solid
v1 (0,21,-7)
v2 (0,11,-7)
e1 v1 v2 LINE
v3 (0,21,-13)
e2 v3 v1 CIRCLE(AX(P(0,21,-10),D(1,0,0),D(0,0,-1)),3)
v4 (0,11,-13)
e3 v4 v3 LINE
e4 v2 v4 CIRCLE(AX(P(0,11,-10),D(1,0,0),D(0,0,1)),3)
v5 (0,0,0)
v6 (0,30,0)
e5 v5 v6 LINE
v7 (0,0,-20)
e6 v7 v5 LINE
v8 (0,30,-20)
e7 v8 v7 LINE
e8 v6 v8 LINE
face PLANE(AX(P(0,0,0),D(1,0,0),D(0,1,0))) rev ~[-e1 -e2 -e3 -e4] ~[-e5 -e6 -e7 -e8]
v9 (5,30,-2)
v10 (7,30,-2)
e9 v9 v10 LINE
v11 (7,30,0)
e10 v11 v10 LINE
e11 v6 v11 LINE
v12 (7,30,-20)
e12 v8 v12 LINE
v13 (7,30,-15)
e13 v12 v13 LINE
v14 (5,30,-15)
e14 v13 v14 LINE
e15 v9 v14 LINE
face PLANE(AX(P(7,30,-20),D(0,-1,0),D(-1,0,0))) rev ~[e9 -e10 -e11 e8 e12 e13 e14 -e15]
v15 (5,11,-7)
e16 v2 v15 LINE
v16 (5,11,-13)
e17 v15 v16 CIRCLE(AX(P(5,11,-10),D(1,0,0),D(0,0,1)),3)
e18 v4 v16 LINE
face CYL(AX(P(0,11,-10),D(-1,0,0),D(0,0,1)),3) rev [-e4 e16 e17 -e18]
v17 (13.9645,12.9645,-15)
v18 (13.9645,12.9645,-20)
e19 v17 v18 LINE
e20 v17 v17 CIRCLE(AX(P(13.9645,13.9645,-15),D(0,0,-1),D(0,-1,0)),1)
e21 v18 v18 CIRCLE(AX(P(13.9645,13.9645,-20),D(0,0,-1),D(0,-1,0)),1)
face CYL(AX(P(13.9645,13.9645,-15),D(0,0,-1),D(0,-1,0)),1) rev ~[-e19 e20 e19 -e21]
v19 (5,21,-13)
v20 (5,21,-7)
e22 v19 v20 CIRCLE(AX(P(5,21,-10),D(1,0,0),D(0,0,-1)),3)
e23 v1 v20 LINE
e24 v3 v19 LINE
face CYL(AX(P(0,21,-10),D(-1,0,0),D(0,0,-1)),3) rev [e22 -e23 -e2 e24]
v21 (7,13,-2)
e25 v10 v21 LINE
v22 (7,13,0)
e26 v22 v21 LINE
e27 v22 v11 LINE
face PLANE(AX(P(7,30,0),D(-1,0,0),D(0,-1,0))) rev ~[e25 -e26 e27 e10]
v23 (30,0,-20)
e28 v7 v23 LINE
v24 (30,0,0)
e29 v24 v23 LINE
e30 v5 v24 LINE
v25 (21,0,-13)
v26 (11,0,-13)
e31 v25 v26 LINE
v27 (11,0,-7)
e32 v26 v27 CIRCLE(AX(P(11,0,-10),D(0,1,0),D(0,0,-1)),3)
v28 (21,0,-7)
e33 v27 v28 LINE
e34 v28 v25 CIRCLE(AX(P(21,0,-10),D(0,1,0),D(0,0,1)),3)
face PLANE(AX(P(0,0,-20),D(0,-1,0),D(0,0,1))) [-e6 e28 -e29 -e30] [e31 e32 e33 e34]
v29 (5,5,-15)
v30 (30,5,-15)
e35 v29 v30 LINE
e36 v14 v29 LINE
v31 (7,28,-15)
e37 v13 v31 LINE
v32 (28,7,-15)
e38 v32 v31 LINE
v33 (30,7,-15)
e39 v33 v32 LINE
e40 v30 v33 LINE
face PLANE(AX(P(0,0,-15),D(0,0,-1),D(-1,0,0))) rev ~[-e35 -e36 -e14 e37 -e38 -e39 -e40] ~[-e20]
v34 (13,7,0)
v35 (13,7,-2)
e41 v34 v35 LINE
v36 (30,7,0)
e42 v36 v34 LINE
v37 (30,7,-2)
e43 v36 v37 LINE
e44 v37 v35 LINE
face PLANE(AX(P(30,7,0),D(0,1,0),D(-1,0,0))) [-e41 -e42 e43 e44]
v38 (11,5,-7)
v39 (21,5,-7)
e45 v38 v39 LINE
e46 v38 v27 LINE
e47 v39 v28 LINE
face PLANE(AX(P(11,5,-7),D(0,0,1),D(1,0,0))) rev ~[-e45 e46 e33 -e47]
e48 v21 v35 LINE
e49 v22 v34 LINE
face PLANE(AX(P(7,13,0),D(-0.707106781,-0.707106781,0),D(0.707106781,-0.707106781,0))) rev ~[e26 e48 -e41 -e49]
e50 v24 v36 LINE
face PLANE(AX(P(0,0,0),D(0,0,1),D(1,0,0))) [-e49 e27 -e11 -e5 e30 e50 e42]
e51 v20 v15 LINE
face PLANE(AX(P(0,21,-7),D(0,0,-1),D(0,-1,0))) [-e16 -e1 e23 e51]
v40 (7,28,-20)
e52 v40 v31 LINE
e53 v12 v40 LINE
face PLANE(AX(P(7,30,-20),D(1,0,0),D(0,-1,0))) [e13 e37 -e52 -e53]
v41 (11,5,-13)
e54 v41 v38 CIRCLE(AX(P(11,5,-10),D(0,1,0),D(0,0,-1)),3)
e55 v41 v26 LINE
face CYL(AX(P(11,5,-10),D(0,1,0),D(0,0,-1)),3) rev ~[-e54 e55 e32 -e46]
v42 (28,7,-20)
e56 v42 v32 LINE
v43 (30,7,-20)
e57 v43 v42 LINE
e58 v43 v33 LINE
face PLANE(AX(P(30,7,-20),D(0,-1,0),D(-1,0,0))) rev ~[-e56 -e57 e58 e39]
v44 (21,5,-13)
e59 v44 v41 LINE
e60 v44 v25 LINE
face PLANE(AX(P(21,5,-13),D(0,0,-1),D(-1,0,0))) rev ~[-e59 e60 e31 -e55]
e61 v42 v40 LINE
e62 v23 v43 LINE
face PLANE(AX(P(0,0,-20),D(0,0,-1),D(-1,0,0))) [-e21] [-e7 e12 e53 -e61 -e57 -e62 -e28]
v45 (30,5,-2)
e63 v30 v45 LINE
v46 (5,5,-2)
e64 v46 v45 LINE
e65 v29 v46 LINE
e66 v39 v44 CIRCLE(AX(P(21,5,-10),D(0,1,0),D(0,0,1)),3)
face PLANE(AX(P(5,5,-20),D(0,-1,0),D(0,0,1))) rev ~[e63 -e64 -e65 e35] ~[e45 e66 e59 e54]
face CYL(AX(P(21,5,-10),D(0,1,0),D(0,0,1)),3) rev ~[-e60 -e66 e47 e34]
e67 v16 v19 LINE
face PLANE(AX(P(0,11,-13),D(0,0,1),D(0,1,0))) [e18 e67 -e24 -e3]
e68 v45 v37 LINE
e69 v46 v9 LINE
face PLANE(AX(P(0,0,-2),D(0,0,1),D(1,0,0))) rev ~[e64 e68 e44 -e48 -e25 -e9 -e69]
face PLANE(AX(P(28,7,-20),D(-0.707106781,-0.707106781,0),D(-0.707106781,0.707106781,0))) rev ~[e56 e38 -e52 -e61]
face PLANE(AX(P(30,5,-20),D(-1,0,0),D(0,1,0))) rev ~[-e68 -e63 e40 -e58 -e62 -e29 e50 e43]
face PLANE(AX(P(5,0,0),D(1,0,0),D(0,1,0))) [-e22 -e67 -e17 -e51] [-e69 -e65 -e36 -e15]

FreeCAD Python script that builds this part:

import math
import FreeCAD as App
import Part
import Sketcher

V = App.Vector


def add_polygon(sketch, points):
    """Adds a closed chain of lines whose ends are joined by coincident constraints."""
    first, n = sketch.GeometryCount, len(points)
    for a, b in zip(points, points[1:] + points[:1]):
        sketch.addGeometry(Part.LineSegment(App.Vector(*a, 0), App.Vector(*b, 0)), False)
    for i in range(n):
        sketch.addConstraint(Sketcher.Constraint("Coincident", first + i, 2, first + (i + 1) % n, 1))

doc = App.newDocument("Part")
params = doc.addObject("Spreadsheet::Sheet", "Params")
for row, (alias, value) in enumerate([
    ("sketch1_radius", "3 mm"),
    ("sketch1_width", "30 mm"),
    ("sketch1_width2", "10 mm"),
    ("sketch1_height", "20 mm"),
    ("pad1_length", "5 mm"),
    ("sketch2_width", "5 mm"),
    ("sketch2_height", "20 mm"),
    ("pad2_length", "25 mm"),
    ("sketch3_radius", "3 mm"),
    ("sketch3_width", "10 mm"),
    ("pocket1_length", "5 mm"),
    ("sketch4_width", "2 mm"),
    ("sketch4_width2", "25 mm"),
    ("pad3_length", "2 mm"),
    ("sketch5_width", "2 mm"),
    ("sketch5_width2", "25 mm"),
    ("pad4_length", "5 mm"),
    ("sketch6_width", "15 mm"),
    ("pocket2_length", "2 mm"),
    ("sketch7_diameter", "2 mm"),
    ("hole_diameter", "2 mm"),
], start=1):
    params.set(f"A{row}", alias)
    params.set(f"B{row}", "=" + value)
    params.setAlias(f"B{row}", alias)

body = doc.addObject("PartDesign::Body", "Body")

# Sketch on YZ plane
sketch1 = body.newObject("Sketcher::SketchObject", "Sketch")
sketch1.AttachmentSupport = (doc.getObject("YZ_Plane"), [""])
sketch1.MapMode = "FlatFace"
add_polygon(sketch1, [(30, 0), (0, 0), (0, -20), (30, -20)])  # lines 0-3
sketch1.addGeometry(Part.LineSegment(V(11, -7, 0), V(21, -7, 0)), False)  # 4
sketch1.addGeometry(Part.ArcOfCircle(Part.Circle(V(21, -10, 0), V(0, 0, 1), 3), math.radians(-90), math.radians(90)), False)  # 5
sketch1.addGeometry(Part.LineSegment(V(21, -13, 0), V(11, -13, 0)), False)  # 6
sketch1.addGeometry(Part.ArcOfCircle(Part.Circle(V(11, -10, 0), V(0, 0, 1), 3), math.radians(90), math.radians(270)), False)  # 7
sketch1.addConstraint(Sketcher.Constraint("Tangent", 4, 2, 5, 2))
sketch1.addConstraint(Sketcher.Constraint("Tangent", 5, 1, 6, 1))
sketch1.addConstraint(Sketcher.Constraint("Tangent", 6, 2, 7, 2))
sketch1.addConstraint(Sketcher.Constraint("Tangent", 7, 1, 4, 1))
sketch1.addConstraint(Sketcher.Constraint("Horizontal", 0))
sketch1.addConstraint(Sketcher.Constraint("Vertical", 1))
sketch1.addConstraint(Sketcher.Constraint("Horizontal", 2))
sketch1.addConstraint(Sketcher.Constraint("Vertical", 3))
sketch1.addConstraint(Sketcher.Constraint("Horizontal", 4))
sketch1.addConstraint(Sketcher.Constraint("Horizontal", 6))
sketch1.addConstraint(Sketcher.Constraint("Coincident", 0, 2, -1, 1))
sketch1.addConstraint(Sketcher.Constraint("Radius", 5, 3.0))
sketch1.addConstraint(Sketcher.Constraint("DistanceX", 0, 2, 0, 1, 30.0))
sketch1.addConstraint(Sketcher.Constraint("DistanceX", 4, 1, 4, 2, 10.0))
sketch1.addConstraint(Sketcher.Constraint("DistanceY", 1, 2, 1, 1, 20.0))
sketch1.addConstraint(Sketcher.Constraint("DistanceY", 5, 3, -1, 1, 10.0))
sketch1.addConstraint(Sketcher.Constraint("DistanceX", -1, 1, 5, 3, 21.0))
sketch1.setExpression("Constraints[15]", "Params.sketch1_radius")
sketch1.setExpression("Constraints[16]", "Params.sketch1_width")
sketch1.setExpression("Constraints[17]", "Params.sketch1_width2")
sketch1.setExpression("Constraints[18]", "Params.sketch1_height")
pad1 = body.newObject("PartDesign::Pad", "Pad")
pad1.Profile = sketch1
pad1.setExpression("Length", "Params.pad1_length")

# Sketch on YZ plane
sketch2 = body.newObject("Sketcher::SketchObject", "Sketch001")
sketch2.AttachmentSupport = (doc.getObject("YZ_Plane"), [""])
sketch2.MapMode = "FlatFace"
sketch2.AttachmentOffset = App.Placement(V(0, 0, 5), App.Rotation())
add_polygon(sketch2, [(5, 0), (0, 0), (0, -20), (5, -20)])  # lines 0-3
sketch2.addConstraint(Sketcher.Constraint("Horizontal", 0))
sketch2.addConstraint(Sketcher.Constraint("Vertical", 1))
sketch2.addConstraint(Sketcher.Constraint("Horizontal", 2))
sketch2.addConstraint(Sketcher.Constraint("Vertical", 3))
sketch2.addConstraint(Sketcher.Constraint("Coincident", 0, 2, -1, 1))
sketch2.addConstraint(Sketcher.Constraint("DistanceX", 0, 2, 0, 1, 5.0))
sketch2.addConstraint(Sketcher.Constraint("DistanceY", 1, 2, 1, 1, 20.0))
sketch2.setExpression("Constraints[9]", "Params.sketch2_width")
sketch2.setExpression("Constraints[10]", "Params.sketch2_height")
pad2 = body.newObject("PartDesign::Pad", "Pad001")
pad2.Profile = sketch2
pad2.setExpression("Length", "Params.pad2_length")

# Sketch on XZ plane
sketch3 = body.newObject("Sketcher::SketchObject", "Sketch002")
sketch3.AttachmentSupport = (doc.getObject("XZ_Plane"), [""])
sketch3.MapMode = "FlatFace"
sketch3.AttachmentOffset = App.Placement(V(0, 0, -5), App.Rotation())
sketch3.addGeometry(Part.ArcOfCircle(Part.Circle(V(11, -10, 0), V(0, 0, 1), 3), math.radians(90), math.radians(270)), False)
sketch3.addGeometry(Part.LineSegment(V(11, -7, 0), V(21, -7, 0)), False)
sketch3.addGeometry(Part.ArcOfCircle(Part.Circle(V(21, -10, 0), V(0, 0, 1), 3), math.radians(-90), math.radians(90)), False)
sketch3.addGeometry(Part.LineSegment(V(21, -13, 0), V(11, -13, 0)), False)
sketch3.addConstraint(Sketcher.Constraint("Tangent", 0, 1, 1, 1))
sketch3.addConstraint(Sketcher.Constraint("Tangent", 1, 2, 2, 2))
sketch3.addConstraint(Sketcher.Constraint("Tangent", 2, 1, 3, 1))
sketch3.addConstraint(Sketcher.Constraint("Tangent", 3, 2, 0, 2))
sketch3.addConstraint(Sketcher.Constraint("Horizontal", 1))
sketch3.addConstraint(Sketcher.Constraint("Horizontal", 3))
sketch3.addConstraint(Sketcher.Constraint("Radius", 0, 3.0))
sketch3.addConstraint(Sketcher.Constraint("DistanceX", 1, 1, 1, 2, 10.0))
sketch3.addConstraint(Sketcher.Constraint("DistanceY", 0, 3, -1, 1, 10.0))
sketch3.addConstraint(Sketcher.Constraint("DistanceX", -1, 1, 0, 3, 11.0))
sketch3.setExpression("Constraints[6]", "Params.sketch3_radius")
sketch3.setExpression("Constraints[7]", "Params.sketch3_width")
pocket1 = body.newObject("PartDesign::Pocket", "Pocket")
pocket1.Profile = sketch3
pocket1.setExpression("Length", "Params.pocket1_length")
pocket1.Reversed = True

# Sketch on XY plane
sketch4 = body.newObject("Sketcher::SketchObject", "Sketch003")
sketch4.AttachmentSupport = (doc.getObject("XY_Plane"), [""])
sketch4.MapMode = "FlatFace"
add_polygon(sketch4, [(7, 30), (5, 30), (5, 5), (30, 5), (30, 7), (28, 7), (7, 28)])  # lines 0-6
sketch4.addConstraint(Sketcher.Constraint("Horizontal", 0))
sketch4.addConstraint(Sketcher.Constraint("Vertical", 1))
sketch4.addConstraint(Sketcher.Constraint("Horizontal", 2))
sketch4.addConstraint(Sketcher.Constraint("Vertical", 3))
sketch4.addConstraint(Sketcher.Constraint("Horizontal", 4))
sketch4.addConstraint(Sketcher.Constraint("Vertical", 6))
sketch4.addConstraint(Sketcher.Constraint("Equal", 0, 4))
sketch4.addConstraint(Sketcher.Constraint("Equal", 2, 1))
sketch4.addConstraint(Sketcher.Constraint("Equal", 4, 3))
sketch4.addConstraint(Sketcher.Constraint("Equal", 3, 6))
sketch4.addConstraint(Sketcher.Constraint("DistanceX", 0, 2, 0, 1, 2.0))
sketch4.addConstraint(Sketcher.Constraint("DistanceX", 2, 1, 2, 2, 25.0))
sketch4.addConstraint(Sketcher.Constraint("DistanceX", -1, 1, 0, 2, 5.0))
sketch4.addConstraint(Sketcher.Constraint("DistanceY", -1, 1, 0, 2, 30.0))
sketch4.setExpression("Constraints[17]", "Params.sketch4_width")
sketch4.setExpression("Constraints[18]", "Params.sketch4_width2")
pad3 = body.newObject("PartDesign::Pad", "Pad002")
pad3.Profile = sketch4
pad3.setExpression("Length", "Params.pad3_length")
pad3.Reversed = True

# Sketch on XY plane
sketch5 = body.newObject("Sketcher::SketchObject", "Sketch004")
sketch5.AttachmentSupport = (doc.getObject("XY_Plane"), [""])
sketch5.MapMode = "FlatFace"
sketch5.AttachmentOffset = App.Placement(V(0, 0, -20), App.Rotation())
add_polygon(sketch5, [(30, 7), (30, 5), (5, 5), (5, 30), (7, 30), (7, 28), (28, 7)])  # lines 0-6
sketch5.addConstraint(Sketcher.Constraint("Vertical", 0))
sketch5.addConstraint(Sketcher.Constraint("Horizontal", 1))
sketch5.addConstraint(Sketcher.Constraint("Vertical", 2))
sketch5.addConstraint(Sketcher.Constraint("Horizontal", 3))
sketch5.addConstraint(Sketcher.Constraint("Vertical", 4))
sketch5.addConstraint(Sketcher.Constraint("Horizontal", 6))
sketch5.addConstraint(Sketcher.Constraint("Equal", 3, 6))
sketch5.addConstraint(Sketcher.Constraint("Equal", 6, 0))
sketch5.addConstraint(Sketcher.Constraint("Equal", 1, 2))
sketch5.addConstraint(Sketcher.Constraint("Equal", 0, 4))
sketch5.addConstraint(Sketcher.Constraint("DistanceX", 3, 1, 3, 2, 2.0))
sketch5.addConstraint(Sketcher.Constraint("DistanceX", 1, 2, 1, 1, 25.0))
sketch5.addConstraint(Sketcher.Constraint("DistanceX", -1, 1, 0, 2, 30.0))
sketch5.addConstraint(Sketcher.Constraint("DistanceY", -1, 1, 0, 2, 5.0))
sketch5.setExpression("Constraints[17]", "Params.sketch5_width")
sketch5.setExpression("Constraints[18]", "Params.sketch5_width2")
pad4 = body.newObject("PartDesign::Pad", "Pad003")
pad4.Profile = sketch5
pad4.setExpression("Length", "Params.pad4_length")

# Sketch on XY plane
sketch6 = body.newObject("Sketcher::SketchObject", "Sketch005")
sketch6.AttachmentSupport = (doc.getObject("XY_Plane"), [""])
sketch6.MapMode = "FlatFace"
add_polygon(sketch6, [(13, 7), (28, 7), (7, 28), (7, 13)])  # lines 0-3
sketch6.addConstraint(Sketcher.Constraint("Horizontal", 0))
sketch6.addConstraint(Sketcher.Constraint("Vertical", 2))
sketch6.addConstraint(Sketcher.Constraint("Parallel", 1, 3))
sketch6.addConstraint(Sketcher.Constraint("Equal", 0, 2))
sketch6.addConstraint(Sketcher.Constraint("DistanceX", 0, 1, 0, 2, 15.0))
sketch6.addConstraint(Sketcher.Constraint("DistanceX", -1, 1, 0, 2, 28.0))
sketch6.addConstraint(Sketcher.Constraint("DistanceY", -1, 1, 0, 2, 7.0))
sketch6.addConstraint(Sketcher.Constraint("DistanceX", -1, 1, 1, 2, 7.0))
sketch6.setExpression("Constraints[8]", "Params.sketch6_width")
pocket2 = body.newObject("PartDesign::Pocket", "Pocket001")
pocket2.Profile = sketch6
pocket2.setExpression("Length", "Params.pocket2_length")

# Sketch on XY plane
sketch7 = body.newObject("Sketcher::SketchObject", "Sketch006")
sketch7.AttachmentSupport = (doc.getObject("XY_Plane"), [""])
sketch7.MapMode = "FlatFace"
sketch7.AttachmentOffset = App.Placement(V(0, 0, -15), App.Rotation())
sketch7.addGeometry(Part.Circle(V(14, 14, 0), V(0, 0, 1), 1), False)
sketch7.addConstraint(Sketcher.Constraint("Diameter", 0, 2.0))
sketch7.addConstraint(Sketcher.Constraint("DistanceX", -1, 1, 0, 3, 13.9645))
sketch7.addConstraint(Sketcher.Constraint("DistanceY", -1, 1, 0, 3, 13.9645))
sketch7.setExpression("Constraints[0]", "Params.sketch7_diameter")
doc.recompute()
hole = body.newObject("PartDesign::Hole", "Hole")
hole.Profile = sketch7
hole.ThreadType = "None"
hole.setExpression("Diameter", "Params.hole_diameter")
hole.DepthType = "ThroughAll"

doc.recompute()
